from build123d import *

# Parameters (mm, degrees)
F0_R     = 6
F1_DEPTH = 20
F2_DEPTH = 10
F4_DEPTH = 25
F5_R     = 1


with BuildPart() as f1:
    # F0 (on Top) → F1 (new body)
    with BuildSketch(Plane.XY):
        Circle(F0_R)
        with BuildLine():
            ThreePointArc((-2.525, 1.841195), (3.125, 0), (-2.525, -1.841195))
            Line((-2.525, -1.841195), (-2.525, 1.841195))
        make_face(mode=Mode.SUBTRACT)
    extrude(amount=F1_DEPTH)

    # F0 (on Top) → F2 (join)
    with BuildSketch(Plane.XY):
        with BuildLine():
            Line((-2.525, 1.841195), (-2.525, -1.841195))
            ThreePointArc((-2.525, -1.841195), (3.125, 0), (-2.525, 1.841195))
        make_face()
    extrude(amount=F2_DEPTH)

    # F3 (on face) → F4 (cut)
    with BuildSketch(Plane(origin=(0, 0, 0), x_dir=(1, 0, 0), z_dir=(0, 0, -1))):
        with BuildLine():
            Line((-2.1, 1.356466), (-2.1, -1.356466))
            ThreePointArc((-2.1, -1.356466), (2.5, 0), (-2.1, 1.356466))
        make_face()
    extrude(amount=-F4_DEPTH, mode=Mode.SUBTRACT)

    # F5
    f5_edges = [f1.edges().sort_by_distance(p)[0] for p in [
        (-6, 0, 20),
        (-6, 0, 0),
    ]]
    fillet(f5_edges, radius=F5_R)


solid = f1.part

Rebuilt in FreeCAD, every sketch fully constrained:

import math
import FreeCAD as App
import Part
import Sketcher

V = App.Vector


def edges_at(feature, points):
    """Names of the edges that pass closest to the given points."""
    edges = feature.Shape.Edges
    near = lambda p: min(range(len(edges)), key=lambda i: edges[i].distToShape(Part.Vertex(*p))[0])
    return sorted({f"Edge{near(p) + 1}" for p in points})

doc = App.newDocument("Part")
body = doc.addObject("PartDesign::Body", "Body")

# Sketch on XY plane
sketch1 = body.newObject("Sketcher::SketchObject", "Sketch")
sketch1.AttachmentSupport = (doc.getObject("XY_Plane"), [""])
sketch1.MapMode = "FlatFace"
sketch1.addGeometry([
    Part.Circle(V(0, 0, 0), V(0, 0, 1), 6),
    Part.LineSegment(V(-2.5, -1.8, 0), V(-2.5, 1.8, 0)),
    Part.ArcOfCircle(Part.Circle(V(0, 0, 0), V(0, 0, 1), 3.1), math.radians(-144), math.radians(144)),
], False)
sketch1.addConstraint([
    Sketcher.Constraint("Coincident", 1, 1, 2, 1),
    Sketcher.Constraint("Coincident", 2, 2, 1, 2),
    Sketcher.Constraint("Vertical", 1),
    Sketcher.Constraint("Coincident", 0, 3, -1, 1),
    Sketcher.Constraint("Coincident", 2, 3, -1, 1),
    Sketcher.Constraint("Diameter", 0, 12.0),
    Sketcher.Constraint("Radius", 2, 3.125),
    Sketcher.Constraint("DistanceX", 1, 1, -1, 1, 2.525),
])
pad1 = body.newObject("PartDesign::Pad", "Pad")
pad1.Profile = sketch1
pad1.Length = 20

# Sketch on XY plane
sketch2 = body.newObject("Sketcher::SketchObject", "Sketch001")
sketch2.AttachmentSupport = (doc.getObject("XY_Plane"), [""])
sketch2.MapMode = "FlatFace"
sketch2.addGeometry([
    Part.LineSegment(V(-2.5, 1.8, 0), V(-2.5, -1.8, 0)),
    Part.ArcOfCircle(Part.Circle(V(0, 0, 0), V(0, 0, 1), 3.1), math.radians(-144), math.radians(144)),
], False)
sketch2.addConstraint([
    Sketcher.Constraint("Coincident", 0, 1, 1, 2),
    Sketcher.Constraint("Coincident", 1, 1, 0, 2),
    Sketcher.Constraint("Vertical", 0),
    Sketcher.Constraint("Coincident", 1, 3, -1, 1),
    Sketcher.Constraint("Radius", 1, 3.125),
    Sketcher.Constraint("DistanceX", 0, 1, -1, 1, 2.525),
])
pad2 = body.newObject("PartDesign::Pad", "Pad001")
pad2.Profile = sketch2
pad2.Length = 10

# Sketch on XY plane
sketch3 = body.newObject("Sketcher::SketchObject", "Sketch002")
sketch3.AttachmentSupport = (doc.getObject("XY_Plane"), [""])
sketch3.MapMode = "FlatFace"
sketch3.addGeometry([
    Part.LineSegment(V(-2.1, -1.4, 0), V(-2.1, 1.4, 0)),
    Part.ArcOfCircle(Part.Circle(V(0, 0, 0), V(0, 0, 1), 2.5), math.radians(-147), math.radians(147)),
], False)
sketch3.addConstraint([
    Sketcher.Constraint("Coincident", 0, 1, 1, 1),
    Sketcher.Constraint("Coincident", 1, 2, 0, 2),
    Sketcher.Constraint("Vertical", 0),
    Sketcher.Constraint("Coincident", 1, 3, -1, 1),
    Sketcher.Constraint("Radius", 1, 2.5),
    Sketcher.Constraint("DistanceX", 0, 1, -1, 1, 2.1),
])
pocket1 = body.newObject("PartDesign::Pocket", "Pocket")
pocket1.Profile = sketch3
pocket1.Length = 25
pocket1.Reversed = True
doc.recompute()

fillet = body.newObject("PartDesign::Fillet", "Fillet")
fillet.Base = (pocket1, edges_at(pocket1, [(-6, 0, 20), (-6, 0, 0)]))
fillet.Radius = 1

doc.recompute()
